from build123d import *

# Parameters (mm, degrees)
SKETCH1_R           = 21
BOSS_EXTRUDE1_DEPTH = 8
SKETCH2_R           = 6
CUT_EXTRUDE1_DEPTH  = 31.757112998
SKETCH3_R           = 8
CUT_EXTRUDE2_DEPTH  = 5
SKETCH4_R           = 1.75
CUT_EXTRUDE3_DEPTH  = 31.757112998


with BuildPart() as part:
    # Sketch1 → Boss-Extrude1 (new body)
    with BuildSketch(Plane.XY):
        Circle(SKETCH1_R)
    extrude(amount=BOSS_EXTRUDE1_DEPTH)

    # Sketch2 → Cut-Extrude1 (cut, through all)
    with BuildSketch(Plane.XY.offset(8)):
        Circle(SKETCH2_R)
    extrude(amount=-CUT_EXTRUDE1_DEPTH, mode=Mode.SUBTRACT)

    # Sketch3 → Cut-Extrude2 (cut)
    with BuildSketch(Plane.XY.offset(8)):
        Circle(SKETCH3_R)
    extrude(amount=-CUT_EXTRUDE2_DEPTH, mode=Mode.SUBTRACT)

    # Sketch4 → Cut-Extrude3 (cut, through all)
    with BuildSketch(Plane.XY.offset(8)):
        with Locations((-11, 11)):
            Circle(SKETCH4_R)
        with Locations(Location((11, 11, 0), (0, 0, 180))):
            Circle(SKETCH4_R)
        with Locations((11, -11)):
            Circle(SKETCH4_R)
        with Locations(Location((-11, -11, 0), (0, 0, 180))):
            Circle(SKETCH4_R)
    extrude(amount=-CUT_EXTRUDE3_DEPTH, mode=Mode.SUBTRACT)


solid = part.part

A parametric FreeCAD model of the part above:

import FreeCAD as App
import Part
import Sketcher
Q = App.Units.Quantity

doc = App.newDocument("Part")
body = doc.addObject("PartDesign::Body", "Body")

sketch1 = body.newObject("Sketcher::SketchObject", "Sketch")
sketch1.AttachmentSupport = (doc.getObject("XY_Plane"), [""])
sketch1.MapMode = "FlatFace"
sketch1.addGeometry(Part.Circle(App.Vector(0, 0, 0), App.Vector(0, 0, 1), 21), False)
sketch1.addConstraint(Sketcher.Constraint("Coincident", 0, 3, -1, 1))
sketch1.addConstraint(Sketcher.Constraint("Diameter", 0, Q("42 mm")))
pad1 = body.newObject("PartDesign::Pad", "Pad")
pad1.Profile = sketch1
pad1.Length = 8

sketch2 = body.newObject("Sketcher::SketchObject", "Sketch001")
sketch2.AttachmentSupport = (doc.getObject("XY_Plane"), [""])
sketch2.MapMode = "FlatFace"
sketch2.AttachmentOffset = App.Placement(App.Vector(0, 0, 8), App.Rotation())
sketch2.addGeometry(Part.Circle(App.Vector(0, 0, 0), App.Vector(0, 0, 1), 6), False)
sketch2.addConstraint(Sketcher.Constraint("Coincident", 0, 3, -1, 1))
sketch2.addConstraint(Sketcher.Constraint("Diameter", 0, Q("12 mm")))
pocket1 = body.newObject("PartDesign::Pocket", "Pocket")
pocket1.Profile = sketch2
pocket1.Type = "ThroughAll"

sketch3 = body.newObject("Sketcher::SketchObject", "Sketch002")
sketch3.AttachmentSupport = (doc.getObject("XY_Plane"), [""])
sketch3.MapMode = "FlatFace"
sketch3.AttachmentOffset = App.Placement(App.Vector(0, 0, 8), App.Rotation())
sketch3.addGeometry(Part.Circle(App.Vector(0, 0, 0), App.Vector(0, 0, 1), 8), False)
sketch3.addConstraint(Sketcher.Constraint("Coincident", 0, 3, -1, 1))
sketch3.addConstraint(Sketcher.Constraint("Diameter", 0, Q("16 mm")))
pocket2 = body.newObject("PartDesign::Pocket", "Pocket001")
pocket2.Profile = sketch3
pocket2.Length = 5

sketch4 = body.newObject("Sketcher::SketchObject", "Sketch003")
sketch4.AttachmentSupport = (doc.getObject("XY_Plane"), [""])
sketch4.MapMode = "FlatFace"
sketch4.AttachmentOffset = App.Placement(App.Vector(0, 0, 8), App.Rotation())
sketch4.addGeometry(Part.Circle(App.Vector(-11, 11, 0), App.Vector(0, 0, 1), 1.75), False)
sketch4.addGeometry(Part.Circle(App.Vector(11, 11, 0), App.Vector(0, 0, 1), 1.75), False)
sketch4.addGeometry(Part.Circle(App.Vector(11, -11, 0), App.Vector(0, 0, 1), 1.75), False)
sketch4.addGeometry(Part.Circle(App.Vector(-11, -11, 0), App.Vector(0, 0, 1), 1.75), False)
sketch4.addConstraint(Sketcher.Constraint("Equal", 0, 1))
sketch4.addConstraint(Sketcher.Constraint("Equal", 1, 2))
sketch4.addConstraint(Sketcher.Constraint("Equal", 2, 3))
sketch4.addConstraint(Sketcher.Constraint("Symmetric", 0, 3, 2, 3, -1, 1))
sketch4.addConstraint(Sketcher.Constraint("Symmetric", 1, 3, 3, 3, -1, 1))
sketch4.addConstraint(Sketcher.Constraint("Symmetric", 0, 3, 1, 3, -2))
sketch4.addConstraint(Sketcher.Constraint("Diameter", 0, Q("3.5 mm")))
sketch4.addConstraint(Sketcher.Constraint("DistanceX", 0, 3, -1, 1, Q("11 mm")))
sketch4.addConstraint(Sketcher.Constraint("DistanceY", -1, 1, 0, 3, Q("11 mm")))
pocket3 = body.newObject("PartDesign::Pocket", "Pocket002")
pocket3.Profile = sketch4
pocket3.Type = "ThroughAll"

doc.recompute()
